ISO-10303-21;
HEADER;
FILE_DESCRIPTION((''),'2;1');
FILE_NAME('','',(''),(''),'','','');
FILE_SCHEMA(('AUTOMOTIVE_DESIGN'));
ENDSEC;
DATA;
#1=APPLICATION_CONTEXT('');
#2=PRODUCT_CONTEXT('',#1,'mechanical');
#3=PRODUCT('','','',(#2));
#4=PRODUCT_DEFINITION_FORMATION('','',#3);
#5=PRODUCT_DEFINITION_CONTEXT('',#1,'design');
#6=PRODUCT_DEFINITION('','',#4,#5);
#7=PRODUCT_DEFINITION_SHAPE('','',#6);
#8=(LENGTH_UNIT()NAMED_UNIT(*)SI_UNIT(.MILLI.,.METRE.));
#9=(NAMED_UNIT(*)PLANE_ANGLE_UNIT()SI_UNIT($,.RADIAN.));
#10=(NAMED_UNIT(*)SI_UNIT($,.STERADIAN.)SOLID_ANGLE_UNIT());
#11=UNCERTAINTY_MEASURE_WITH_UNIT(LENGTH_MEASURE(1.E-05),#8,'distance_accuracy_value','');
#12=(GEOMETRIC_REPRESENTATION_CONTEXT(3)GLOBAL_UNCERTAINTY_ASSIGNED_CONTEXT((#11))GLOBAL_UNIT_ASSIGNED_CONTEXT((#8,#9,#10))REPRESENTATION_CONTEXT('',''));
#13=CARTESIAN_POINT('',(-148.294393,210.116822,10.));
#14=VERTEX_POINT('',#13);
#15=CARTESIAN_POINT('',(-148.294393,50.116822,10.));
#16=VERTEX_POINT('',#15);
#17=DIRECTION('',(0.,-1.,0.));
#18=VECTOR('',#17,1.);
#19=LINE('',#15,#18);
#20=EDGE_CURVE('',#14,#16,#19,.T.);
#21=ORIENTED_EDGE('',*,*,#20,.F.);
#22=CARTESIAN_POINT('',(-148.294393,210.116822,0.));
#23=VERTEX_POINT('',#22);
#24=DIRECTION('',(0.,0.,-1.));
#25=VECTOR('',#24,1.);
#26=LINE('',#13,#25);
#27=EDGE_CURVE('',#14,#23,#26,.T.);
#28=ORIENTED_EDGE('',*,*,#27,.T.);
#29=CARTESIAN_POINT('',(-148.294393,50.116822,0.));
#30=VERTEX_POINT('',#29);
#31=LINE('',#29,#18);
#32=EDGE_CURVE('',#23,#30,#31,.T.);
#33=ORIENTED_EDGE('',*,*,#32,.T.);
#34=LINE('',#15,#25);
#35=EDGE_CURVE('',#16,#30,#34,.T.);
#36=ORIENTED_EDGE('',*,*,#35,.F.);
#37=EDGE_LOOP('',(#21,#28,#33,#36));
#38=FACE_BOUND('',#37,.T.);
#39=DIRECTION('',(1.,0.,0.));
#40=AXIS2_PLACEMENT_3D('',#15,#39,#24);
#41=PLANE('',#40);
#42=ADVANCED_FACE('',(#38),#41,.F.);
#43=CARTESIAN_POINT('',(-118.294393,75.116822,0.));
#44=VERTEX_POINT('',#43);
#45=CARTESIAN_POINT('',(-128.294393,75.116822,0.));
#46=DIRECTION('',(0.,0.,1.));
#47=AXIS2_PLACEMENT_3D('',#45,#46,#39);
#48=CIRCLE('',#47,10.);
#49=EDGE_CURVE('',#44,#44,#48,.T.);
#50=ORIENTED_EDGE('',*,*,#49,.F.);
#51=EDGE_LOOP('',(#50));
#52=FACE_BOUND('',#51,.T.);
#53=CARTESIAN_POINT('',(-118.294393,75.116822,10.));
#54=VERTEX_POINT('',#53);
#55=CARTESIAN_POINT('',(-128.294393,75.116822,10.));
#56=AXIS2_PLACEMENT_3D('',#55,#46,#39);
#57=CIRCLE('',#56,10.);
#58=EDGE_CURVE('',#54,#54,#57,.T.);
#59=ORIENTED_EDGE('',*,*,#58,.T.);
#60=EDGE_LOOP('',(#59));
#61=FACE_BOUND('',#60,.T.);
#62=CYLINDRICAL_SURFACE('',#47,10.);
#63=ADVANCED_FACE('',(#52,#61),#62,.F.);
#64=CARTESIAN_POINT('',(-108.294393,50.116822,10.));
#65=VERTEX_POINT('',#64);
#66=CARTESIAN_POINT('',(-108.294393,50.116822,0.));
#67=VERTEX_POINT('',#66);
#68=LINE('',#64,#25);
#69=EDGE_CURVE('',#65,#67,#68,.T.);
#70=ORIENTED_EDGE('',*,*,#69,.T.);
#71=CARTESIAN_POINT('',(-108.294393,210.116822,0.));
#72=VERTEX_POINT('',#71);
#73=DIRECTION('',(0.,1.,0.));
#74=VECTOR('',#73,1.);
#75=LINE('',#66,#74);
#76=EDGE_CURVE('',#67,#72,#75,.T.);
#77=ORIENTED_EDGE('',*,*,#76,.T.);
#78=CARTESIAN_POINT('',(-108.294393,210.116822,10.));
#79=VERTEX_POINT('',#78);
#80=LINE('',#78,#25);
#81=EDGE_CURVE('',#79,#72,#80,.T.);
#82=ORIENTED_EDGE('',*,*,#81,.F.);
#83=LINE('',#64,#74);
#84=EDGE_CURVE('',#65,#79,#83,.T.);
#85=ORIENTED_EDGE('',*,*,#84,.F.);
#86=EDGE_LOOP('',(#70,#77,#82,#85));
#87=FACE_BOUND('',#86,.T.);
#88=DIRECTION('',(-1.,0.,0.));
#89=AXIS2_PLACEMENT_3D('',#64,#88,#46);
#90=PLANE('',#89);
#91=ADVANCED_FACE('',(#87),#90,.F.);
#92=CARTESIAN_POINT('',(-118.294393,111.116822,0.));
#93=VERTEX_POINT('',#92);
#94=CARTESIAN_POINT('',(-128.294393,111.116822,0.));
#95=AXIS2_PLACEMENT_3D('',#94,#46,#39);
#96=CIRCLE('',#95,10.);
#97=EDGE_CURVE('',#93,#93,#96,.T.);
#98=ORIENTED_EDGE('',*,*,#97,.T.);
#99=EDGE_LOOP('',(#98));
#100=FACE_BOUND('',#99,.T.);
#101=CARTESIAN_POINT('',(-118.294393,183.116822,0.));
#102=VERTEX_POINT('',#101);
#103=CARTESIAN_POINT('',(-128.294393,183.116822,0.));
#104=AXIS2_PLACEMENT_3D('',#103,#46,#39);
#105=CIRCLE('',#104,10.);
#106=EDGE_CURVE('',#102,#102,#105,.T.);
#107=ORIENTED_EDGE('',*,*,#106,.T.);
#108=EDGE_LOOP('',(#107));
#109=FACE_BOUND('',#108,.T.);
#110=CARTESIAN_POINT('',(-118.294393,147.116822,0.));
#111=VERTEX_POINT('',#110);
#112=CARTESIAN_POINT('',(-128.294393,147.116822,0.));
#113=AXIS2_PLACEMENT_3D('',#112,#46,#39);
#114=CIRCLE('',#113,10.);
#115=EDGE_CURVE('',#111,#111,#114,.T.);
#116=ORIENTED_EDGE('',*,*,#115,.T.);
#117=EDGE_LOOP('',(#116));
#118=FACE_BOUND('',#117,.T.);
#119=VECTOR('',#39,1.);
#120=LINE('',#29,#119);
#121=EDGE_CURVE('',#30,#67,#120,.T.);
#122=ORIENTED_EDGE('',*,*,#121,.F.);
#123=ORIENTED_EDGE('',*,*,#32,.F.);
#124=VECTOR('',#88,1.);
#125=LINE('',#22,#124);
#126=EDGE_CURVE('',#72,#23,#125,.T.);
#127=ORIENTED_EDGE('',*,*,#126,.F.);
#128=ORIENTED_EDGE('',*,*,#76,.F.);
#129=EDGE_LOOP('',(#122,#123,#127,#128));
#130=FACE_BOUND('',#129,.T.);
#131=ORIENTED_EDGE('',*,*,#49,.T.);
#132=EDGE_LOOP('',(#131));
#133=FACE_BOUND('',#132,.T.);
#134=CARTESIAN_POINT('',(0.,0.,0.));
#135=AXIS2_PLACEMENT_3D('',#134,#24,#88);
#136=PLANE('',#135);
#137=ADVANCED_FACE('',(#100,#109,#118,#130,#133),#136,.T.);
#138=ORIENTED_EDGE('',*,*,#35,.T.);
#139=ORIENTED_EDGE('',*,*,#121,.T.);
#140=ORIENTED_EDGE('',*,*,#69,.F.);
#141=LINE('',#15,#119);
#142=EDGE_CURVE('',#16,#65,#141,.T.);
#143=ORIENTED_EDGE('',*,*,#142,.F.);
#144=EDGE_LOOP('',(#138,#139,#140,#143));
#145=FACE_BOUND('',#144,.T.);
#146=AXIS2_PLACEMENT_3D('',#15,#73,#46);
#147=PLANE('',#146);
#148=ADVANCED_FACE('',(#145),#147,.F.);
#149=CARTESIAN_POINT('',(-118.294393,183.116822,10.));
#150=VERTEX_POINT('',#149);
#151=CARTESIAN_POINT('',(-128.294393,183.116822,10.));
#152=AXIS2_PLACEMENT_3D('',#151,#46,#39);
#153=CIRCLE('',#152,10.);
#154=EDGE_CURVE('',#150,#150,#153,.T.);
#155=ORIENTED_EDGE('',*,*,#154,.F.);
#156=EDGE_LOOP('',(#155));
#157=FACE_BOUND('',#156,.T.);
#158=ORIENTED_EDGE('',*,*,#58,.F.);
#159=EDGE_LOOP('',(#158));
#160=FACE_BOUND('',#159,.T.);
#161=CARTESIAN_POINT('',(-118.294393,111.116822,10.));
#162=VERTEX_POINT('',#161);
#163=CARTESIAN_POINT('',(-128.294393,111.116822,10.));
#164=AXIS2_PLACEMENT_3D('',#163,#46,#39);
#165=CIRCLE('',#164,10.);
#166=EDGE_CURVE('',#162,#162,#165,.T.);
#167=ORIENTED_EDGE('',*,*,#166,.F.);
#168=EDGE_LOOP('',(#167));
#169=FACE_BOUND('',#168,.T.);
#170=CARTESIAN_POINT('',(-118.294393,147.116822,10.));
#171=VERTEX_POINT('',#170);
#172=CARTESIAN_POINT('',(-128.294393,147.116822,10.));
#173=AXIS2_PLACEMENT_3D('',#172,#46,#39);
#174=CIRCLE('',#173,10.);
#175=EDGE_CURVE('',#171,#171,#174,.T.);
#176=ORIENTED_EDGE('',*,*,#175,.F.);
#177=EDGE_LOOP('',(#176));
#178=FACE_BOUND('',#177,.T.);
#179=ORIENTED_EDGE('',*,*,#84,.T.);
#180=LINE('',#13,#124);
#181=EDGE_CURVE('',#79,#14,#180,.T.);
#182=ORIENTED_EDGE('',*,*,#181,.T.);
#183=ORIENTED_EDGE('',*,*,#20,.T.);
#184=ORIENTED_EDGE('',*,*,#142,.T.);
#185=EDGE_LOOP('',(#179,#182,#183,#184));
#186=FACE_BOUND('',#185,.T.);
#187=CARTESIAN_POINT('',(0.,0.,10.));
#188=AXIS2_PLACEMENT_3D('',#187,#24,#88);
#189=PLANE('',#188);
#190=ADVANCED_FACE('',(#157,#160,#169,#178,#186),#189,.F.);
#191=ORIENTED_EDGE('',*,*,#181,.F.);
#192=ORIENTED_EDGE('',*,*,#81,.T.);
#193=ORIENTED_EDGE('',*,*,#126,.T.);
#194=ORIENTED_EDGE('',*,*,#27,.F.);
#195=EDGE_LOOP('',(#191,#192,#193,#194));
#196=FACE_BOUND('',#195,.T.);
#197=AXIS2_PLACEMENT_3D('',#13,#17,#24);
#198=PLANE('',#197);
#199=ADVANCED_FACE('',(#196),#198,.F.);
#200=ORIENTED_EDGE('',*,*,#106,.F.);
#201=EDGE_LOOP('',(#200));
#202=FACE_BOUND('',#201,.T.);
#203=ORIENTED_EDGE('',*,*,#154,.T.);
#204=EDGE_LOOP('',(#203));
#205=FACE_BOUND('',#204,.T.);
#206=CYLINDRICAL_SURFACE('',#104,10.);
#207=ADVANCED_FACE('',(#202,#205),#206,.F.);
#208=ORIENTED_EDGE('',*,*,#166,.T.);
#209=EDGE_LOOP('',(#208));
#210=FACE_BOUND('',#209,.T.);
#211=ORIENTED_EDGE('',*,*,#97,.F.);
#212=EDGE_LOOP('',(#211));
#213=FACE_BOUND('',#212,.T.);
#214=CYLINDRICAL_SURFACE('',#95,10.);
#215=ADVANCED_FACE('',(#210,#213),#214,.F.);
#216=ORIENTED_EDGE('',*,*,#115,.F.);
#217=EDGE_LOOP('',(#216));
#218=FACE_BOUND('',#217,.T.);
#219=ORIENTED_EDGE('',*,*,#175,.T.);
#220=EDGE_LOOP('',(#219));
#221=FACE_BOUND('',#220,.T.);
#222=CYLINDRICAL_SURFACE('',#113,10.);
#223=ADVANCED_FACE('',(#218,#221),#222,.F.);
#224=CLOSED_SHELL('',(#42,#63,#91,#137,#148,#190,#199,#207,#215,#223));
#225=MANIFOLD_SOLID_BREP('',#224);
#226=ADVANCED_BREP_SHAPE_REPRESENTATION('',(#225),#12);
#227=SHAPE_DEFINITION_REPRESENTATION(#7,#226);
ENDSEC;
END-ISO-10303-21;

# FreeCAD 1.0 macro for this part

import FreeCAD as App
import Part
import Sketcher

doc = App.newDocument("Part")
body = doc.addObject("PartDesign::Body", "Body")

sketch1 = doc.addObject("Sketcher::SketchObject", "Sketch")
body.addObject(sketch1)
sketch1.AttachmentSupport = (doc.XY_Plane, [""])
sketch1.MapMode = "FlatFace"
sketch1.addGeometry(Part.LineSegment(App.Vector(-148.294393, 210.116822, 0), App.Vector(-148.294393, 50.116822, 0)), False)
sketch1.addGeometry(Part.LineSegment(App.Vector(-148.294393, 50.116822, 0), App.Vector(-108.294393, 50.116822, 0)), False)
sketch1.addGeometry(Part.LineSegment(App.Vector(-108.294393, 50.116822, 0), App.Vector(-108.294393, 210.116822, 0)), False)
sketch1.addGeometry(Part.LineSegment(App.Vector(-108.294393, 210.116822, 0), App.Vector(-148.294393, 210.116822, 0)), False)
sketch1.addConstraint(Sketcher.Constraint("Coincident", 0, 2, 1, 1))
sketch1.addConstraint(Sketcher.Constraint("Coincident", 1, 2, 2, 1))
sketch1.addConstraint(Sketcher.Constraint("Coincident", 2, 2, 3, 1))
sketch1.addConstraint(Sketcher.Constraint("Coincident", 3, 2, 0, 1))
sketch1.addConstraint(Sketcher.Constraint("Vertical", 0))
sketch1.addConstraint(Sketcher.Constraint("Horizontal", 1))
sketch1.addConstraint(Sketcher.Constraint("Vertical", 2))
sketch1.addConstraint(Sketcher.Constraint("Horizontal", 3))
sketch1.addConstraint(Sketcher.Constraint("DistanceX", 1, 1, 1, 2, 40.0))
sketch1.addConstraint(Sketcher.Constraint("DistanceY", 0, 2, 0, 1, 160.0))
sketch1.addConstraint(Sketcher.Constraint("DistanceX", 0, 2, -1, 1, 148.294393))
sketch1.addConstraint(Sketcher.Constraint("DistanceY", -1, 1, 0, 2, 50.116822))
pad1 = doc.addObject("PartDesign::Pad", "Pad")
body.addObject(pad1)
pad1.Profile = sketch1
pad1.Length = 10

sketch2 = doc.addObject("Sketcher::SketchObject", "Sketch001")
body.addObject(sketch2)
sketch2.AttachmentSupport = (doc.XY_Plane, [""])
sketch2.MapMode = "FlatFace"
sketch2.AttachmentOffset = App.Placement(App.Vector(0, 0, 10), App.Rotation())
sketch2.addGeometry(Part.Circle(App.Vector(-128.294393, 75.116822, 0), App.Vector(0, 0, 1), 10), False)
sketch2.addConstraint(Sketcher.Constraint("Diameter", 0, 20.0))
sketch2.addConstraint(Sketcher.Constraint("DistanceX", 0, 3, -1, 1, 128.294393))
sketch2.addConstraint(Sketcher.Constraint("DistanceY", -1, 1, 0, 3, 75.116822))
pocket1 = doc.addObject("PartDesign::Pocket", "Pocket")
body.addObject(pocket1)
pocket1.Profile = sketch2
pocket1.Type = "ThroughAll"
doc.recompute()

linearpattern = doc.addObject("PartDesign::LinearPattern", "LinearPattern")
body.addObject(linearpattern)
linearpattern.Originals = [pocket1]
linearpattern.Direction = (doc.Y_Axis, [""])
linearpattern.Mode = "offset"
linearpattern.Offset = 36
linearpattern.Occurrences = 4
body.Tip = linearpattern

doc.recompute()
